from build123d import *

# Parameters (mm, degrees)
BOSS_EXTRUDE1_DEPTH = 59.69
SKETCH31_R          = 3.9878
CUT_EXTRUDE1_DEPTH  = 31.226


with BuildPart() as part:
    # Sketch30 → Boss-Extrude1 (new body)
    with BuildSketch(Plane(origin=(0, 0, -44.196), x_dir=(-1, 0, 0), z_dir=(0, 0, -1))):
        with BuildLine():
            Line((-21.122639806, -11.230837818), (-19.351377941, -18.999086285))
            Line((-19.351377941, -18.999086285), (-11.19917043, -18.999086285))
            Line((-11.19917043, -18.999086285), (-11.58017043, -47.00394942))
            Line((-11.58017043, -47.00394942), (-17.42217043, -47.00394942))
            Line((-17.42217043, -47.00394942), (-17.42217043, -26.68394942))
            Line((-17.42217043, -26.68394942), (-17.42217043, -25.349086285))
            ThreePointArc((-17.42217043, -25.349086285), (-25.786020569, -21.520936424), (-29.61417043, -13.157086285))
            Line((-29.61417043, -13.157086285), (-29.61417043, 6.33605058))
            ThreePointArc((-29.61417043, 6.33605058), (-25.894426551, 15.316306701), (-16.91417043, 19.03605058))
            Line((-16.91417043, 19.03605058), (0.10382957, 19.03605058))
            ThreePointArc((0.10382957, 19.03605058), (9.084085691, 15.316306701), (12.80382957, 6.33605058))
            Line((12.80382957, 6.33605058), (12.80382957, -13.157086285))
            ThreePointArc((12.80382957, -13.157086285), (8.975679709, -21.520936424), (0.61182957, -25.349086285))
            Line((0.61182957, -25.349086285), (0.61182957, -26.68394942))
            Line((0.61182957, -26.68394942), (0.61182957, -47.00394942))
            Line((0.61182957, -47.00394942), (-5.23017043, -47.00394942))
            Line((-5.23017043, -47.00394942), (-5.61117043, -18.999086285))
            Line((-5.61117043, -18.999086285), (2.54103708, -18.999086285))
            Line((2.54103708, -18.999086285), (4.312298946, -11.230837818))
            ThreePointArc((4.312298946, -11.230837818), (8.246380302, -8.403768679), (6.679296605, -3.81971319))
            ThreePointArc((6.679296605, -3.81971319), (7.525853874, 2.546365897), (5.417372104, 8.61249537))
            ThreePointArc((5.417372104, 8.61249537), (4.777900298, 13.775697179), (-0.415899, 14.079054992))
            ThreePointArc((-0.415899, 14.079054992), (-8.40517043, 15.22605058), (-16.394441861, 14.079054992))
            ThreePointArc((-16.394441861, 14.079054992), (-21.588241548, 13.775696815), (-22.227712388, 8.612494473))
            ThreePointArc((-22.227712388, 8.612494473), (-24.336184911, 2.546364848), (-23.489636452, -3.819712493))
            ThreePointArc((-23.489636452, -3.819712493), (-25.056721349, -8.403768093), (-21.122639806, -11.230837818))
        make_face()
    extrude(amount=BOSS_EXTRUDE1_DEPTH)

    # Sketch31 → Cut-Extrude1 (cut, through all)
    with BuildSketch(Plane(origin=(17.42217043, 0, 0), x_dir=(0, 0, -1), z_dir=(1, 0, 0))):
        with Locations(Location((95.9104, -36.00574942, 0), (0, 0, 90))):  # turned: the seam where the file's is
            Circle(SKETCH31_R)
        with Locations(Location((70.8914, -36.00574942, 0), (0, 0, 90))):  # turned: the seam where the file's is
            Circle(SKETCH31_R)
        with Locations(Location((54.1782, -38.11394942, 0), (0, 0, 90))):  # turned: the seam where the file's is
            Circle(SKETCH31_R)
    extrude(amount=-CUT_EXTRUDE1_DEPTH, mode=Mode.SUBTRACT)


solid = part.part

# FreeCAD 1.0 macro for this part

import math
import FreeCAD as App
import Part
import Sketcher

V = App.Vector
Q = App.Units.Quantity

doc = App.newDocument("Part")
body = doc.addObject("PartDesign::Body", "Body")

# Sketch on XY plane
sketch1 = body.newObject("Sketcher::SketchObject", "Sketch")
sketch1.AttachmentSupport = (doc.getObject("XY_Plane"), [""])
sketch1.MapMode = "FlatFace"
sketch1.AttachmentOffset = App.Placement(V(0, 0, -1.74 * 25.4), App.Rotation())
sketch1.addGeometry(Part.LineSegment(V(19.4, -19, 0), V(21.1, -11.2, 0)), False)
sketch1.addGeometry(Part.ArcOfCircle(Part.Circle(V(21.2, -7.2, 0), V(0, 0, 1), 4.1), math.radians(-91), math.radians(55)), False)
sketch1.addGeometry(Part.ArcOfCircle(Part.Circle(V(10.5, 1.1, 0), V(0, 0, 1), 13.9), math.radians(-21), math.radians(33)), False)
sketch1.addGeometry(Part.ArcOfCircle(Part.Circle(V(18.8, 10.8, 0), V(0, 0, 1), 4.1), math.radians(-33), math.radians(126)), False)
sketch1.addGeometry(Part.ArcOfCircle(Part.Circle(V(8.4, -13.2, 0), V(0, 0, 1), 28.4), math.radians(74), math.radians(106)), False)
sketch1.addGeometry(Part.ArcOfCircle(Part.Circle(V(-2, 10.8, 0), V(0, 0, 1), 4.1), math.radians(54), math.radians(213)), False)
sketch1.addGeometry(Part.ArcOfCircle(Part.Circle(V(6.3, 1.1, 0), V(0, 0, 1), 13.9), math.radians(147), math.radians(201)), False)
sketch1.addGeometry(Part.ArcOfCircle(Part.Circle(V(-4.4, -7.2, 0), V(0, 0, 1), 4.1), math.radians(125), math.radians(271)), False)
sketch1.addGeometry(Part.LineSegment(V(-4.3, -11.2, 0), V(-2.5, -19, 0)), False)
sketch1.addGeometry(Part.LineSegment(V(-2.5, -19, 0), V(5.6, -19, 0)), False)
sketch1.addGeometry(Part.LineSegment(V(5.6, -19, 0), V(5.2, -47, 0)), False)
sketch1.addGeometry(Part.LineSegment(V(5.2, -47, 0), V(-0.6, -47, 0)), False)
sketch1.addGeometry(Part.LineSegment(V(-0.6, -47, 0), V(-0.6, -25.3, 0)), False)
sketch1.addGeometry(Part.ArcOfCircle(Part.Circle(V(0.4, -12.2, 0), V(0, 0, 1), 13.2), math.radians(-176), math.radians(-94)), False)
sketch1.addGeometry(Part.LineSegment(V(-12.8, -13.2, 0), V(-12.8, 6.3, 0)), False)
sketch1.addGeometry(Part.ArcOfCircle(Part.Circle(V(-0.1, 6.3, 0), V(0, 0, 1), 12.7), math.radians(90), math.radians(180)), False)
sketch1.addGeometry(Part.LineSegment(V(-0.1, 19, 0), V(16.9, 19, 0)), False)
sketch1.addGeometry(Part.ArcOfCircle(Part.Circle(V(16.9, 6.3, 0), V(0, 0, 1), 12.7), math.radians(0), math.radians(90)), False)
sketch1.addGeometry(Part.LineSegment(V(29.6, 6.3, 0), V(29.6, -13.2, 0)), False)
sketch1.addGeometry(Part.ArcOfCircle(Part.Circle(V(16.5, -12.2, 0), V(0, 0, 1), 13.2), math.radians(-86), math.radians(-4)), False)
sketch1.addGeometry(Part.LineSegment(V(17.4, -25.3, 0), V(17.4, -47, 0)), False)
sketch1.addGeometry(Part.LineSegment(V(17.4, -47, 0), V(11.6, -47, 0)), False)
sketch1.addGeometry(Part.LineSegment(V(11.6, -47, 0), V(11.2, -19, 0)), False)
sketch1.addGeometry(Part.LineSegment(V(11.2, -19, 0), V(19.4, -19, 0)), False)
sketch1.addConstraint(Sketcher.Constraint("Coincident", 0, 2, 1, 1))
sketch1.addConstraint(Sketcher.Constraint("Coincident", 1, 2, 2, 1))
sketch1.addConstraint(Sketcher.Constraint("Coincident", 2, 2, 3, 1))
sketch1.addConstraint(Sketcher.Constraint("Coincident", 3, 2, 4, 1))
sketch1.addConstraint(Sketcher.Constraint("Coincident", 4, 2, 5, 1))
sketch1.addConstraint(Sketcher.Constraint("Coincident", 5, 2, 6, 1))
sketch1.addConstraint(Sketcher.Constraint("Coincident", 6, 2, 7, 1))
sketch1.addConstraint(Sketcher.Constraint("Coincident", 7, 2, 8, 1))
sketch1.addConstraint(Sketcher.Constraint("Coincident", 8, 2, 9, 1))
sketch1.addConstraint(Sketcher.Constraint("Coincident", 9, 2, 10, 1))
sketch1.addConstraint(Sketcher.Constraint("Coincident", 10, 2, 11, 1))
sketch1.addConstraint(Sketcher.Constraint("Coincident", 11, 2, 12, 1))
sketch1.addConstraint(Sketcher.Constraint("Coincident", 12, 2, 13, 2))
sketch1.addConstraint(Sketcher.Constraint("Coincident", 13, 1, 14, 1))
sketch1.addConstraint(Sketcher.Constraint("Tangent", 14, 2, 15, 2))
sketch1.addConstraint(Sketcher.Constraint("Tangent", 15, 1, 16, 1))
sketch1.addConstraint(Sketcher.Constraint("Tangent", 16, 2, 17, 2))
sketch1.addConstraint(Sketcher.Constraint("Tangent", 17, 1, 18, 1))
sketch1.addConstraint(Sketcher.Constraint("Coincident", 18, 2, 19, 2))
sketch1.addConstraint(Sketcher.Constraint("Coincident", 19, 1, 20, 1))
sketch1.addConstraint(Sketcher.Constraint("Coincident", 20, 2, 21, 1))
sketch1.addConstraint(Sketcher.Constraint("Coincident", 21, 2, 22, 1))
sketch1.addConstraint(Sketcher.Constraint("Coincident", 22, 2, 23, 1))
sketch1.addConstraint(Sketcher.Constraint("Coincident", 23, 2, 0, 1))
sketch1.addConstraint(Sketcher.Constraint("Horizontal", 9))
sketch1.addConstraint(Sketcher.Constraint("Horizontal", 11))
sketch1.addConstraint(Sketcher.Constraint("Vertical", 12))
sketch1.addConstraint(Sketcher.Constraint("Vertical", 14))
sketch1.addConstraint(Sketcher.Constraint("Horizontal", 16))
sketch1.addConstraint(Sketcher.Constraint("Vertical", 18))
sketch1.addConstraint(Sketcher.Constraint("Vertical", 20))
sketch1.addConstraint(Sketcher.Constraint("Horizontal", 21))
sketch1.addConstraint(Sketcher.Constraint("Horizontal", 23))
sketch1.addConstraint(Sketcher.Constraint("Equal", 1, 3))
sketch1.addConstraint(Sketcher.Constraint("Equal", 3, 5))
sketch1.addConstraint(Sketcher.Constraint("Equal", 5, 7))
sketch1.addConstraint(Sketcher.Constraint("Equal", 15, 17))
sketch1.addConstraint(Sketcher.Constraint("Equal", 13, 19))
sketch1.addConstraint(Sketcher.Constraint("Horizontal", 3, 3, 5, 3))
sketch1.addConstraint(Sketcher.Constraint("Horizontal", 1, 3, 7, 3))
sketch1.addConstraint(Sketcher.Constraint("Horizontal", 13, 3, 19, 3))
sketch1.addConstraint(Sketcher.Constraint("Horizontal", 3, 2, 4, 2))
sketch1.addConstraint(Sketcher.Constraint("Horizontal", 2, 2, 5, 2))
sketch1.addConstraint(Sketcher.Constraint("Horizontal", 1, 2, 6, 2))
sketch1.addConstraint(Sketcher.Constraint("Horizontal", 0, 2, 7, 2))
sketch1.addConstraint(Sketcher.Constraint("Horizontal", 13, 1, 18, 2))
sketch1.addConstraint(Sketcher.Constraint("Horizontal", 12, 2, 19, 1))
sketch1.addConstraint(Sketcher.Constraint("Horizontal", 11, 2, 20, 2))
sketch1.addConstraint(Sketcher.Constraint("Horizontal", 9, 2, 22, 2))
sketch1.addConstraint(Sketcher.Constraint("Equal", 11, 21))
sketch1.addConstraint(Sketcher.Constraint("Equal", 9, 23))
sketch1.addConstraint(Sketcher.Constraint("Equal", 0, 8))
sketch1.addConstraint(Sketcher.Constraint("Equal", 10, 22))
sketch1.addConstraint(Sketcher.Constraint("Radius", 15, Q("0.5 in")))
sketch1.addConstraint(Sketcher.Constraint("Radius", 1, Q("0.16 in")))
sketch1.addConstraint(Sketcher.Constraint("DistanceX", 11, 2, 11, 1, Q("0.23 in")))
sketch1.addConstraint(Sketcher.Constraint("DistanceX", 16, 1, 16, 2, Q("0.67 in")))
sketch1.addConstraint(Sketcher.Constraint("Radius", 6, Q("13.885698 mm")))
sketch1.addConstraint(Sketcher.Constraint("DistanceX", 9, 2, 4, 3, Q("0.11 in")))
sketch1.addConstraint(Sketcher.Constraint("DistanceY", 12, 2, 8, 2, Q("0.25 in")))
sketch1.addConstraint(Sketcher.Constraint("DistanceY", 8, 2, 13, 1, Q("0.23 in")))
sketch1.addConstraint(Sketcher.Constraint("DistanceX", 19, 1, 18, 2, Q("0.48 in")))
sketch1.addConstraint(Sketcher.Constraint("DistanceX", 9, 2, 22, 2, Q("0.22 in")))
sketch1.addConstraint(Sketcher.Constraint("Radius", 2, Q("13.885771 mm")))
sketch1.addConstraint(Sketcher.Constraint("DistanceX", -1, 1, 0, 2, Q("0.8316 in")))
sketch1.addConstraint(Sketcher.Constraint("Radius", 4, Q("28.397693 mm")))
sketch1.addConstraint(Sketcher.Constraint("Radius", 13, Q("13.190334 mm")))
sketch1.addConstraint(Sketcher.Constraint("DistanceX", -1, 1, 2, 3, Q("10.5214 mm")))
sketch1.addConstraint(Sketcher.Constraint("DistanceX", -1, 1, 4, 2, Q("0.415899 mm")))
sketch1.addConstraint(Sketcher.Constraint("DistanceX", 7, 2, -1, 1, Q("4.312299 mm")))
sketch1.addConstraint(Sketcher.Constraint("DistanceX", 5, 3, 6, 3, Q("8.2878 mm")))
sketch1.addConstraint(Sketcher.Constraint("DistanceX", 7, 3, 8, 2, Q("1.834 mm")))
sketch1.addConstraint(Sketcher.Constraint("DistanceX", 9, 1, 9, 2, Q("8.152208 mm")))
sketch1.addConstraint(Sketcher.Constraint("DistanceY", 12, 1, 12, 2, Q("21.654863 mm")))
sketch1.addConstraint(Sketcher.Constraint("DistanceY", 14, 1, 14, 2, Q("19.493137 mm")))
sketch1.addConstraint(Sketcher.Constraint("DistanceY", -1, 1, 6, 3, Q("1.144111 mm")))
sketch1.addConstraint(Sketcher.Constraint("DistanceY", -1, 1, 15, 3, Q("6.336051 mm")))
sketch1.addConstraint(Sketcher.Constraint("DistanceY", 1, 3, 3, 3, Q("17.977639 mm")))
sketch1.addConstraint(Sketcher.Constraint("DistanceY", 13, 3, 7, 3, Q("5.02664 mm")))
pad1 = body.newObject("PartDesign::Pad", "Pad")
pad1.Profile = sketch1
pad1.Length = Q("2.35 in")
pad1.Reversed = True

# Sketch on YZ plane
sketch2 = body.newObject("Sketcher::SketchObject", "Sketch001")
sketch2.AttachmentSupport = (doc.getObject("YZ_Plane"), [""])
sketch2.MapMode = "FlatFace"
sketch2.AttachmentOffset = App.Placement(V(0, 0, 17.42217), App.Rotation())
sketch2.addGeometry(Part.Circle(V(-36, -95.9, 0), V(0, 0, 1), 4), False)
sketch2.addGeometry(Part.Circle(V(-36, -70.9, 0), V(0, 0, 1), 4), False)
sketch2.addGeometry(Part.Circle(V(-38.1, -54.2, 0), V(0, 0, 1), 4), False)
sketch2.addConstraint(Sketcher.Constraint("Equal", 0, 1))
sketch2.addConstraint(Sketcher.Constraint("Equal", 1, 2))
sketch2.addConstraint(Sketcher.Constraint("Vertical", 0, 3, 1, 3))
sketch2.addConstraint(Sketcher.Constraint("Diameter", 0, Q("0.314 in")))
sketch2.addConstraint(Sketcher.Constraint("DistanceY", 0, 3, -1, 1, Q("3.776 in")))
sketch2.addConstraint(Sketcher.Constraint("DistanceY", 1, 3, -1, 1, Q("2.791 in")))
sketch2.addConstraint(Sketcher.Constraint("DistanceY", 2, 3, -1, 1, Q("2.133 in")))
sketch2.addConstraint(Sketcher.Constraint("DistanceX", 2, 3, 1, 3, Q("0.083 in")))
sketch2.addConstraint(Sketcher.Constraint("DistanceX", 0, 3, -1, 1, Q("36.005749 mm")))
pocket1 = body.newObject("PartDesign::Pocket", "Pocket")
pocket1.Profile = sketch2
pocket1.Type = "ThroughAll"

doc.recompute()
